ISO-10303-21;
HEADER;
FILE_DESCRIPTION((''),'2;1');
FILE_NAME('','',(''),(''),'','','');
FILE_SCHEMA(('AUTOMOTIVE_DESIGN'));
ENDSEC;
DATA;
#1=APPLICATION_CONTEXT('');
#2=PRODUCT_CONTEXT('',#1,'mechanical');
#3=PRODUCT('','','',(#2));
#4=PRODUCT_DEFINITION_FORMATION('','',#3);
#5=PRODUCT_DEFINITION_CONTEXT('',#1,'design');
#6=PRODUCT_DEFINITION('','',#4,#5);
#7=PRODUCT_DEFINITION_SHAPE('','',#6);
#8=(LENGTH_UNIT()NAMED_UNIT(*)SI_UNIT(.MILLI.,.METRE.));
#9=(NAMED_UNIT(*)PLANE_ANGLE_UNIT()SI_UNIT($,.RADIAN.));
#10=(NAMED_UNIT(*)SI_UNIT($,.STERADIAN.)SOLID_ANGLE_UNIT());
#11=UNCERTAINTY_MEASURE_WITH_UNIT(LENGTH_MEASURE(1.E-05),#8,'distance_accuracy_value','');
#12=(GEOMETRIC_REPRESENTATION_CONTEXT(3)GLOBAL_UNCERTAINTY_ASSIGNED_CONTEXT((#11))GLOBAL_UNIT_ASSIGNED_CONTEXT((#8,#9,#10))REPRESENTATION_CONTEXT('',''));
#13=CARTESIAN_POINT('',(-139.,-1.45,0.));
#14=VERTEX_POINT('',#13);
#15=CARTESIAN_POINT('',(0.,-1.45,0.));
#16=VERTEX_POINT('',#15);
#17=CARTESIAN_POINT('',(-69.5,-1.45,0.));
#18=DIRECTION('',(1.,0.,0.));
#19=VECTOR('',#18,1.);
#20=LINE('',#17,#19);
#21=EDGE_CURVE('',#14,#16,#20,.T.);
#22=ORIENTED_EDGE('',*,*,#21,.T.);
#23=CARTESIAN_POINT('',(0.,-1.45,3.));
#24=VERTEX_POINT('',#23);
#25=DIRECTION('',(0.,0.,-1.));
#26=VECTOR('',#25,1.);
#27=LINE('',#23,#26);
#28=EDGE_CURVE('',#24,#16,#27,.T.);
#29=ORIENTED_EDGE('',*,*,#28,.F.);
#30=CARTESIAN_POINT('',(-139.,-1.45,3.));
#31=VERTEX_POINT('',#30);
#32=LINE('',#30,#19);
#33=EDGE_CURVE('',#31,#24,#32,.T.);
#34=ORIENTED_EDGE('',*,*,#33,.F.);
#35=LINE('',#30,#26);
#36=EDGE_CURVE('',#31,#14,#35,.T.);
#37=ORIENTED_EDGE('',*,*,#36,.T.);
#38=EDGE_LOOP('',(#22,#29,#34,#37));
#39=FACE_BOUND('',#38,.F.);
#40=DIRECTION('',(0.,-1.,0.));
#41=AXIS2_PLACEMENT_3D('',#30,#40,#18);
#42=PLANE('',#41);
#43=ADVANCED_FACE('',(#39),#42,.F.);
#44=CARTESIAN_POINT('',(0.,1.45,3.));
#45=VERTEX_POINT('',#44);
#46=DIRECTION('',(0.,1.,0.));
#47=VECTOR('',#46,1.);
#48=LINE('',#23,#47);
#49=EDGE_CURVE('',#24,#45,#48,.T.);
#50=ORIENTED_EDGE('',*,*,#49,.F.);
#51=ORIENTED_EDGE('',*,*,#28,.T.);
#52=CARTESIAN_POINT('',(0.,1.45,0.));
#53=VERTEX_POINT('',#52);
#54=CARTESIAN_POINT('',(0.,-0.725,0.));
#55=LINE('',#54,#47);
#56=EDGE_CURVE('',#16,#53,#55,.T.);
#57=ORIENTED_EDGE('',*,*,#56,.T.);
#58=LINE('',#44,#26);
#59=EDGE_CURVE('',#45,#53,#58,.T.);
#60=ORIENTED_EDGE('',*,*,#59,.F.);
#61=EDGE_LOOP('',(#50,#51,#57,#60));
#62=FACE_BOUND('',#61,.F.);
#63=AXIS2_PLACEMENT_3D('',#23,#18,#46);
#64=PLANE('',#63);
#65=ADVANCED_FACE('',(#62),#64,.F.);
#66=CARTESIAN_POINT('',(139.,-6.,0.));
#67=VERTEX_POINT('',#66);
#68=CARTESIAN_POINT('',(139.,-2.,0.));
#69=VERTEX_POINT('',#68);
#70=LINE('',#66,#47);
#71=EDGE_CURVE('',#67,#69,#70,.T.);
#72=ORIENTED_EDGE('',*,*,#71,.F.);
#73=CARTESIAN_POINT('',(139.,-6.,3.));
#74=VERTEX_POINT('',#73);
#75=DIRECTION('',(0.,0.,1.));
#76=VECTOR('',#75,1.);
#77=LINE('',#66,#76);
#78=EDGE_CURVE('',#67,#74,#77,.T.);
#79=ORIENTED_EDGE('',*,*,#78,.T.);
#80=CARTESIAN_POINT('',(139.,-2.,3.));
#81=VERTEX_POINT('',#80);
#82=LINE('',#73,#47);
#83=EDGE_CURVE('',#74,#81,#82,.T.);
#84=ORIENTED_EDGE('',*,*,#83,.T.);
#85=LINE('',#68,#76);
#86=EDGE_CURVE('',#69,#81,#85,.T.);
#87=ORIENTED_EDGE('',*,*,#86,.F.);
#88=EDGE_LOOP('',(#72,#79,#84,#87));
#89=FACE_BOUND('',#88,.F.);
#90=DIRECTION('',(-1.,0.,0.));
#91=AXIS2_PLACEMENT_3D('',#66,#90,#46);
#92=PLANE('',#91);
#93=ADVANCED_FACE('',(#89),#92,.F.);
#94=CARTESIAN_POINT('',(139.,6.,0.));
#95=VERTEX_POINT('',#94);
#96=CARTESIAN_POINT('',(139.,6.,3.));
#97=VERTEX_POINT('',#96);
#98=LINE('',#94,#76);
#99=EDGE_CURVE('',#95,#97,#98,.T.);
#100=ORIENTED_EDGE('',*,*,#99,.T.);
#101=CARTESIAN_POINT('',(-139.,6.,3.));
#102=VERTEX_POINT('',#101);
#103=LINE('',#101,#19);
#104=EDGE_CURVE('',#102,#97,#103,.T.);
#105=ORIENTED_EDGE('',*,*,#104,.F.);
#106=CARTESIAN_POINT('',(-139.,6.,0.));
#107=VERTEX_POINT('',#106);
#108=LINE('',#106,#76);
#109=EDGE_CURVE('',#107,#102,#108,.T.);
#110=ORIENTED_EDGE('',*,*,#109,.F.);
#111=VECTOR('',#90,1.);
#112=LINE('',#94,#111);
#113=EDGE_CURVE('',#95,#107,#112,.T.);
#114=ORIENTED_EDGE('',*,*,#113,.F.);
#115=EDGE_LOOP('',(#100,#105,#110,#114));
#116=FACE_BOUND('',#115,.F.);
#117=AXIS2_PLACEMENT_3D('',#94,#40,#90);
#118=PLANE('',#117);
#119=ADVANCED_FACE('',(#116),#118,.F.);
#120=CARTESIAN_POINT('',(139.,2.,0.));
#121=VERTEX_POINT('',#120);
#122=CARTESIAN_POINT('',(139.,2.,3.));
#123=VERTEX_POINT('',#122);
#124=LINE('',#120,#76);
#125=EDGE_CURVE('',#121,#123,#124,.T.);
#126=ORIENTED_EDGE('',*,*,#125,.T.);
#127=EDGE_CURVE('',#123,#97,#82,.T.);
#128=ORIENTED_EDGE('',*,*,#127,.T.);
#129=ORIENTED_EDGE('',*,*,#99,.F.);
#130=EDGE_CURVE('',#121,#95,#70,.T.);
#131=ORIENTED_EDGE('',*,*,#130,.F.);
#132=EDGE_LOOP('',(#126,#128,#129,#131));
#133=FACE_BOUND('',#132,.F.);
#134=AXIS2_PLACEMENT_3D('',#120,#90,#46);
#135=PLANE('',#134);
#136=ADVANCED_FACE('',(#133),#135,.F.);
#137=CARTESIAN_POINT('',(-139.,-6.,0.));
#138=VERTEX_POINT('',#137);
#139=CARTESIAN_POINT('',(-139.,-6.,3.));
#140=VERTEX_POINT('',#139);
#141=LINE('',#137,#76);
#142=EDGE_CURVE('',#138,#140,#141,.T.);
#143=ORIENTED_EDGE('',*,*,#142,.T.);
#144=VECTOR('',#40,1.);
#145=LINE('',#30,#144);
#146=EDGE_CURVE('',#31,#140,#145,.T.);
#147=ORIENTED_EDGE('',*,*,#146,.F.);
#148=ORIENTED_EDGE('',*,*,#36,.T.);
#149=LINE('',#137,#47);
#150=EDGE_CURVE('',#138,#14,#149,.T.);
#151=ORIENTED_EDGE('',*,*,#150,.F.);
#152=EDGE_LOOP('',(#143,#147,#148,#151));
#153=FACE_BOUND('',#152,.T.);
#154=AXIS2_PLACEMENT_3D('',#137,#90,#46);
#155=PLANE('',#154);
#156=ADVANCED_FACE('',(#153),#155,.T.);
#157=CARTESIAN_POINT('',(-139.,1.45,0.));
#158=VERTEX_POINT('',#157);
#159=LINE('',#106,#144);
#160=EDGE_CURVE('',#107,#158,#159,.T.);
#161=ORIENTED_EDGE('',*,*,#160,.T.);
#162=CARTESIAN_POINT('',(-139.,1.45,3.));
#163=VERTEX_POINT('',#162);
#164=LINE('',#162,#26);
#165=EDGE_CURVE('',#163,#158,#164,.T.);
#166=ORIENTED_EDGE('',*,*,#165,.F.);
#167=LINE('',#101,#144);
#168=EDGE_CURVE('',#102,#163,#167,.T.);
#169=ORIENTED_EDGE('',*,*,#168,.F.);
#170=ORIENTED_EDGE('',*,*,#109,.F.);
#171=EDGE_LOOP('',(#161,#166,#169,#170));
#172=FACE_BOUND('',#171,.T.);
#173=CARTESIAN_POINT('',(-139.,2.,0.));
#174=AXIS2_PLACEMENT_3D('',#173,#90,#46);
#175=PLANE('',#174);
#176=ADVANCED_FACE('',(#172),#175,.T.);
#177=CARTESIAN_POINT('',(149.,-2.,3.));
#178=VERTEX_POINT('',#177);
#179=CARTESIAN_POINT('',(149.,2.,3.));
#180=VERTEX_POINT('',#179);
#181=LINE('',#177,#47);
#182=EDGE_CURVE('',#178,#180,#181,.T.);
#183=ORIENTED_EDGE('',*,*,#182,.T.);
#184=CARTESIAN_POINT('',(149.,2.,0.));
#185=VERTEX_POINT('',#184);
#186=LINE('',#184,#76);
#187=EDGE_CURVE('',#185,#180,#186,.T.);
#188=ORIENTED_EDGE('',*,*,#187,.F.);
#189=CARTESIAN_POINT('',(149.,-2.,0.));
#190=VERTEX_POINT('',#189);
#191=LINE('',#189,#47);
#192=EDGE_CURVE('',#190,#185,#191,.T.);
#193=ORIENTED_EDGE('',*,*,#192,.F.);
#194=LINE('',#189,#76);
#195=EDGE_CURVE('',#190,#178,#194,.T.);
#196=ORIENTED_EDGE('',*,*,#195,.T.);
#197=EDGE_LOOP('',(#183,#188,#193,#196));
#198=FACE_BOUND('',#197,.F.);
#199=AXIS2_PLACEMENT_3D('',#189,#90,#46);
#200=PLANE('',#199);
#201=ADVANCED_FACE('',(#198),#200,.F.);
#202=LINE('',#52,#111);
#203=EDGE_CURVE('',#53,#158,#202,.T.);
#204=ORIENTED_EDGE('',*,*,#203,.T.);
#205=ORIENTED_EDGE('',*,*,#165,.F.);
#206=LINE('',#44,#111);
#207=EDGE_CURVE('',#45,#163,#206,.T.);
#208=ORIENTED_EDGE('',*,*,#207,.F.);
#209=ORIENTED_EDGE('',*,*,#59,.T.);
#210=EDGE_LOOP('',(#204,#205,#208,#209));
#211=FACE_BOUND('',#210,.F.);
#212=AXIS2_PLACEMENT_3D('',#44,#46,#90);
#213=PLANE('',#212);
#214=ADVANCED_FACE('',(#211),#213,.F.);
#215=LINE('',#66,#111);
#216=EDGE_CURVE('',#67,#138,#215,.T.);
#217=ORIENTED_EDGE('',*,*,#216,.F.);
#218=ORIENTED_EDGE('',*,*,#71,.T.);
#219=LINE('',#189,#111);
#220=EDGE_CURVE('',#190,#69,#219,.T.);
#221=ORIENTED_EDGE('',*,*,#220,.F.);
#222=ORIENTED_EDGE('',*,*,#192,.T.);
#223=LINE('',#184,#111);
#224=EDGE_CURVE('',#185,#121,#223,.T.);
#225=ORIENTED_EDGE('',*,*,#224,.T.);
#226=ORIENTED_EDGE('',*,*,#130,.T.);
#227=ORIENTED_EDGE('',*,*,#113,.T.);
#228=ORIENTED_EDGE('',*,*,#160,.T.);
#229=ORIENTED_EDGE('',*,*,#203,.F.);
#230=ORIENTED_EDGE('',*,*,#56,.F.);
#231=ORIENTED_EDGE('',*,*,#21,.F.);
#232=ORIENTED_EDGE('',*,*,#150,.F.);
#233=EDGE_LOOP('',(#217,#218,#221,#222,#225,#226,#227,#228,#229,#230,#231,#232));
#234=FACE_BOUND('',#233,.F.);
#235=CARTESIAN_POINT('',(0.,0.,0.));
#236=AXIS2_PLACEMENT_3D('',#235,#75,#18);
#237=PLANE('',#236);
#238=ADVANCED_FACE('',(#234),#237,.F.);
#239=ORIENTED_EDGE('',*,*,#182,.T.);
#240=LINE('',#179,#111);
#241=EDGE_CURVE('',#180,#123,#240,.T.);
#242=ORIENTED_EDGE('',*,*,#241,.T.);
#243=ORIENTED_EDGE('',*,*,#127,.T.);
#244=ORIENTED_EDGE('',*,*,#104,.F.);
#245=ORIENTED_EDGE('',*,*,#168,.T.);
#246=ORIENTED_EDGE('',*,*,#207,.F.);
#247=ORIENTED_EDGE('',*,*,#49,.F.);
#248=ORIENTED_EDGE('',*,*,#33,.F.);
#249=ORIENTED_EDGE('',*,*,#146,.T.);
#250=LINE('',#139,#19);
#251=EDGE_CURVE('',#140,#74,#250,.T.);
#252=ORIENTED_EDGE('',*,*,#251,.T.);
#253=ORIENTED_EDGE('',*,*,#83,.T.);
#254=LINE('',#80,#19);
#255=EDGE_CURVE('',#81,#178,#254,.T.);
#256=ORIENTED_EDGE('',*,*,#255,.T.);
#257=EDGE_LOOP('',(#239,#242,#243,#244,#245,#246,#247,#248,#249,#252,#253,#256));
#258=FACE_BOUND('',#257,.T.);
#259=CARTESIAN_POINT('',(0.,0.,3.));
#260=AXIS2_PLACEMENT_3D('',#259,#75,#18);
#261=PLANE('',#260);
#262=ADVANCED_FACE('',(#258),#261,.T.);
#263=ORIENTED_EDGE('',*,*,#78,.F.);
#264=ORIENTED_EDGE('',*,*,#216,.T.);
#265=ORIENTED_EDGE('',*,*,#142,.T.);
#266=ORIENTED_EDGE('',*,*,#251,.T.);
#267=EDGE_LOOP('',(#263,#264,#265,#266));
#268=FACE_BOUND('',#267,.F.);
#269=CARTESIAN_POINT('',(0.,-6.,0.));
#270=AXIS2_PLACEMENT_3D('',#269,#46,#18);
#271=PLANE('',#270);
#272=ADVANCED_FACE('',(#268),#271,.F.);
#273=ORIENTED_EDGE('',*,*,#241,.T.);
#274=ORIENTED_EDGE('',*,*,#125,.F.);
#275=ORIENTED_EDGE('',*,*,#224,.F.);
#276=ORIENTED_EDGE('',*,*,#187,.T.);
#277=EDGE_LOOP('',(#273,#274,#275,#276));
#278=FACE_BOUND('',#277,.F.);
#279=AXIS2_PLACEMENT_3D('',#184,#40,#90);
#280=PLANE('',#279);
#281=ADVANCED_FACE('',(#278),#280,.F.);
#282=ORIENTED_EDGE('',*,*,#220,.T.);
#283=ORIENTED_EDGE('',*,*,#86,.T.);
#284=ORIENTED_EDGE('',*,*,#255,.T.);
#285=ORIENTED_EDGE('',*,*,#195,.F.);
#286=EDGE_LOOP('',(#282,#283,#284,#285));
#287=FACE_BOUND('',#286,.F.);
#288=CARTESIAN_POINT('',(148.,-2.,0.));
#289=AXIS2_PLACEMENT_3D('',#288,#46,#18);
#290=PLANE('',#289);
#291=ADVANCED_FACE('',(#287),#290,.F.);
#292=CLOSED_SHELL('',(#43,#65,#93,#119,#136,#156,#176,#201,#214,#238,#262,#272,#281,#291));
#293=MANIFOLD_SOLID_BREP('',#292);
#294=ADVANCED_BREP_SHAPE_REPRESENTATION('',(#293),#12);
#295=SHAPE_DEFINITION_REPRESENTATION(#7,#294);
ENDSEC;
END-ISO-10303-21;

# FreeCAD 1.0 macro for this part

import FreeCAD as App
import Part
import Sketcher
Q = App.Units.Quantity


def add_polygon(sketch, points):
    """Adds a closed chain of lines whose ends are joined by coincident constraints."""
    first, n = sketch.GeometryCount, len(points)
    for a, b in zip(points, points[1:] + points[:1]):
        sketch.addGeometry(Part.LineSegment(App.Vector(*a, 0), App.Vector(*b, 0)), False)
    for i in range(n):
        sketch.addConstraint(Sketcher.Constraint("Coincident", first + i, 2, first + (i + 1) % n, 1))

doc = App.newDocument("Part")
params = doc.addObject("Spreadsheet::Sheet", "Params")
for row, (alias, value) in enumerate([
    ("sketch1_width", "10 mm"),
    ("sketch1_height", "4 mm"),
    ("pad1_length", "3 mm"),
    ("sketch2_height", "2.9 mm"),
    ("sketch2_width", "139 mm"),
    ("sketch2_width2", "10 mm"),
    ("sketch2_height2", "4 mm"),
    ("pocket1_length", "10 mm"),
], start=1):
    params.set(f"A{row}", alias)
    params.set(f"B{row}", "=" + value)
    params.setAlias(f"B{row}", alias)

body = doc.addObject("PartDesign::Body", "Body")

sketch1 = body.newObject("Sketcher::SketchObject", "Sketch")
sketch1.AttachmentSupport = (doc.getObject("XY_Plane"), [""])
sketch1.MapMode = "FlatFace"
add_polygon(sketch1, [(139, 6), (-139, 6), (-139, 2), (-149, 2), (-149, -2), (-139, -2), (-139, -6), (139, -6), (139, -2), (149, -2), (149, 2), (139, 2)])
sketch1.addConstraint([
    Sketcher.Constraint("Horizontal", 0),
    Sketcher.Constraint("Vertical", 1),
    Sketcher.Constraint("Horizontal", 2),
    Sketcher.Constraint("Vertical", 3),
    Sketcher.Constraint("Horizontal", 4),
    Sketcher.Constraint("Vertical", 5),
    Sketcher.Constraint("Horizontal", 6),
    Sketcher.Constraint("Vertical", 7),
    Sketcher.Constraint("Horizontal", 8),
    Sketcher.Constraint("Vertical", 9),
    Sketcher.Constraint("Horizontal", 10),
    Sketcher.Constraint("Vertical", 11),
    Sketcher.Constraint("Symmetric", 0, 2, 6, 2, -1, 1),
    Sketcher.Constraint("Symmetric", 2, 2, 8, 2, -1, 1),
    Sketcher.Constraint("Symmetric", 4, 2, 10, 2, -1, 1),
    Sketcher.Constraint("Symmetric", 4, 2, 7, 2, -2),
    Sketcher.Constraint("Equal", 1, 3),
    Sketcher.Constraint("DistanceX", 2, 2, 2, 1, Q("10 mm")),
    Sketcher.Constraint("DistanceY", 1, 2, 1, 1, Q("4 mm")),
    Sketcher.Constraint("DistanceX", 0, 2, -1, 1, Q("139 mm")),
])
sketch1.setExpression("Constraints[29]", "Params.sketch1_width")
sketch1.setExpression("Constraints[30]", "Params.sketch1_height")
pad1 = body.newObject("PartDesign::Pad", "Pad")
pad1.Profile = sketch1
pad1.setExpression("Length", "Params.pad1_length")

sketch2 = body.newObject("Sketcher::SketchObject", "Sketch001")
sketch2.AttachmentSupport = (doc.getObject("XY_Plane"), [""])
sketch2.MapMode = "FlatFace"
sketch2.AttachmentOffset = App.Placement(App.Vector(0, 0, 3), App.Rotation())
add_polygon(sketch2, [(0, -1.4), (0, 1.4), (-139, 1.4), (-139, 2), (-149, 2), (-149, -2), (-139, -2), (-139, -1.4)])
sketch2.addConstraint([
    Sketcher.Constraint("Vertical", 0),
    Sketcher.Constraint("Horizontal", 1),
    Sketcher.Constraint("Vertical", 2),
    Sketcher.Constraint("Horizontal", 3),
    Sketcher.Constraint("Vertical", 4),
    Sketcher.Constraint("Horizontal", 5),
    Sketcher.Constraint("Vertical", 6),
    Sketcher.Constraint("Horizontal", 7),
    Sketcher.Constraint("Symmetric", 0, 2, 7, 2, -1, 1),
    Sketcher.Constraint("Symmetric", 2, 2, 5, 2, -1),
    Sketcher.Constraint("DistanceY", 0, 1, 0, 2, Q("2.9 mm")),
    Sketcher.Constraint("DistanceX", 1, 2, 1, 1, Q("139 mm")),
    Sketcher.Constraint("DistanceX", 3, 2, 3, 1, Q("10 mm")),
    Sketcher.Constraint("DistanceY", 4, 2, 4, 1, Q("4 mm")),
])
sketch2.setExpression("Constraints[18]", "Params.sketch2_height")
sketch2.setExpression("Constraints[19]", "Params.sketch2_width")
sketch2.setExpression("Constraints[20]", "Params.sketch2_width2")
sketch2.setExpression("Constraints[21]", "Params.sketch2_height2")
pocket1 = body.newObject("PartDesign::Pocket", "Pocket")
pocket1.Profile = sketch2
pocket1.setExpression("Length", "Params.pocket1_length")

doc.recompute()
